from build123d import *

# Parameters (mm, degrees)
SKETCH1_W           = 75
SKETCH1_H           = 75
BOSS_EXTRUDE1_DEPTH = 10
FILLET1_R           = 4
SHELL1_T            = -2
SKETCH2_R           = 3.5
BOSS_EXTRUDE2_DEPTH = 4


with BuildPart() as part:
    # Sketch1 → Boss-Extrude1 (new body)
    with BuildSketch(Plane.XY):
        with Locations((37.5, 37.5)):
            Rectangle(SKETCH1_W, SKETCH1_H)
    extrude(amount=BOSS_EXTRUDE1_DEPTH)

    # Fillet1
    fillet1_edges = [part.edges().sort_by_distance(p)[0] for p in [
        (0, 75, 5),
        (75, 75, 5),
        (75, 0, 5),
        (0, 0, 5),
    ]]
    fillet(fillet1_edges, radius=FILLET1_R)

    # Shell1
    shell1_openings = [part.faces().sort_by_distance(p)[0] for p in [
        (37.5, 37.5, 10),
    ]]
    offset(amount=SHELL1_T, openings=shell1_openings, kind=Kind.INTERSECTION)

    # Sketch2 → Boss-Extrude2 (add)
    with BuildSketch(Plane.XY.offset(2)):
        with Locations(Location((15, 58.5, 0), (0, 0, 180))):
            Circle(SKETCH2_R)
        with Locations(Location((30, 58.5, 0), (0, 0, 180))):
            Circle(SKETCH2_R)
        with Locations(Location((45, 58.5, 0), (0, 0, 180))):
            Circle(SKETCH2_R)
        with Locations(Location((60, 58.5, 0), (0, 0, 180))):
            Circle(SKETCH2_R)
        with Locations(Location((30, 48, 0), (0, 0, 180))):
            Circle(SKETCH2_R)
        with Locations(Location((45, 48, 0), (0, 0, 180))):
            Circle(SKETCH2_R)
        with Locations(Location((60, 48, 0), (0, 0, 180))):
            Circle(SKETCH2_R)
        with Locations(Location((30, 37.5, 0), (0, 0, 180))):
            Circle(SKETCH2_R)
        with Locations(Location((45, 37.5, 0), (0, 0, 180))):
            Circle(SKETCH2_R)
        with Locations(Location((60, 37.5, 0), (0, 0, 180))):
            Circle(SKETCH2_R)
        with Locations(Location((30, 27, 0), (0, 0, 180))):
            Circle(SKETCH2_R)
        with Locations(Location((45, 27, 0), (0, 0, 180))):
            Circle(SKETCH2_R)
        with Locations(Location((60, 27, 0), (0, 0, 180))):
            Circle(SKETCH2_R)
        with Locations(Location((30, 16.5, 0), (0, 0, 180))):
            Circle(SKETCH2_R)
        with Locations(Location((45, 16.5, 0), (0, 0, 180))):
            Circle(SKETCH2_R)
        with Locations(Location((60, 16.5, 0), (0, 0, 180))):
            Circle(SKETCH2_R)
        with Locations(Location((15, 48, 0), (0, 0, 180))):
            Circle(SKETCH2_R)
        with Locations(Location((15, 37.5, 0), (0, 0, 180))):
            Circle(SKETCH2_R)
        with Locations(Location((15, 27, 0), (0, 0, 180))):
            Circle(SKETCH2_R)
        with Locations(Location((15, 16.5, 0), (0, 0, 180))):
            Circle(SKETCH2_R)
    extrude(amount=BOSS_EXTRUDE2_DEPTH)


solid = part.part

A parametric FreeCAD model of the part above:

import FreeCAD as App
import Part
import Sketcher

V = App.Vector


def edges_at(feature, points):
    """Names of the edges that pass closest to the given points."""
    edges = feature.Shape.Edges
    near = lambda p: min(range(len(edges)), key=lambda i: edges[i].distToShape(Part.Vertex(*p))[0])
    return sorted({f"Edge{near(p) + 1}" for p in points})


def faces_at(feature, points):
    """Names of the faces that lie closest to the given points."""
    faces = feature.Shape.Faces
    near = lambda p: min(range(len(faces)), key=lambda i: faces[i].distToShape(Part.Vertex(*p))[0])
    return sorted({f"Face{near(p) + 1}" for p in points})


def add_polygon(sketch, points):
    """Adds a closed chain of lines whose ends are joined by coincident constraints."""
    first, n = sketch.GeometryCount, len(points)
    for a, b in zip(points, points[1:] + points[:1]):
        sketch.addGeometry(Part.LineSegment(App.Vector(*a, 0), App.Vector(*b, 0)), False)
    for i in range(n):
        sketch.addConstraint(Sketcher.Constraint("Coincident", first + i, 2, first + (i + 1) % n, 1))

doc = App.newDocument("Part")
params = doc.addObject("Spreadsheet::Sheet", "Params")
for row, (alias, value) in enumerate([
    ("sketch1_width", "75 mm"),
    ("pad1_length", "10 mm"),
    ("fillet_radius", "4 mm"),
    ("thickness_wall", "2 mm"),
    ("sketch2_diameter", "7 mm"),
    ("pad2_length", "4 mm"),
], start=1):
    params.set(f"A{row}", alias)
    params.set(f"B{row}", "=" + value)
    params.setAlias(f"B{row}", alias)

body = doc.addObject("PartDesign::Body", "Body")

# Sketch on XY plane
sketch1 = body.newObject("Sketcher::SketchObject", "Sketch")
sketch1.AttachmentSupport = (doc.getObject("XY_Plane"), [""])
sketch1.MapMode = "FlatFace"
add_polygon(sketch1, [(0, 75), (0, 0), (75, 0), (75, 75)])  # lines 0-3
sketch1.addConstraint(Sketcher.Constraint("Vertical", 0))
sketch1.addConstraint(Sketcher.Constraint("Horizontal", 1))
sketch1.addConstraint(Sketcher.Constraint("Vertical", 2))
sketch1.addConstraint(Sketcher.Constraint("Horizontal", 3))
sketch1.addConstraint(Sketcher.Constraint("Coincident", 0, 2, -1, 1))
sketch1.addConstraint(Sketcher.Constraint("Equal", 3, 0))
sketch1.addConstraint(Sketcher.Constraint("DistanceX", 1, 1, 1, 2, 75.0))
sketch1.setExpression("Constraints[10]", "Params.sketch1_width")
pad1 = body.newObject("PartDesign::Pad", "Pad")
pad1.Profile = sketch1
pad1.setExpression("Length", "Params.pad1_length")
doc.recompute()

fillet = body.newObject("PartDesign::Fillet", "Fillet")
fillet.Base = (pad1, edges_at(pad1, [
    (0, 75, 5),
    (75, 75, 5),
    (75, 0, 5),
    (0, 0, 5),
]))
fillet.setExpression("Radius", "Params.fillet_radius")
doc.recompute()

thickness = body.newObject("PartDesign::Thickness", "Thickness")
thickness.Base = (fillet, faces_at(fillet, [(37.5, 37.5, 10)]))
thickness.setExpression("Value", "Params.thickness_wall")
thickness.Reversed = True
thickness.Join = "Intersection"

# Sketch on XY plane
sketch2 = body.newObject("Sketcher::SketchObject", "Sketch001")
sketch2.AttachmentSupport = (doc.getObject("XY_Plane"), [""])
sketch2.MapMode = "FlatFace"
sketch2.AttachmentOffset = App.Placement(V(0, 0, 2), App.Rotation())
sketch2.addGeometry(Part.Circle(V(15, 58.5, 0), V(0, 0, 1), 3.5), False)
sketch2.addGeometry(Part.Circle(V(30, 58.5, 0), V(0, 0, 1), 3.5), False)
sketch2.addGeometry(Part.Circle(V(45, 58.5, 0), V(0, 0, 1), 3.5), False)
sketch2.addGeometry(Part.Circle(V(60, 58.5, 0), V(0, 0, 1), 3.5), False)
sketch2.addGeometry(Part.Circle(V(30, 48, 0), V(0, 0, 1), 3.5), False)
sketch2.addGeometry(Part.Circle(V(45, 48, 0), V(0, 0, 1), 3.5), False)
sketch2.addGeometry(Part.Circle(V(60, 48, 0), V(0, 0, 1), 3.5), False)
sketch2.addGeometry(Part.Circle(V(30, 37.5, 0), V(0, 0, 1), 3.5), False)
sketch2.addGeometry(Part.Circle(V(45, 37.5, 0), V(0, 0, 1), 3.5), False)
sketch2.addGeometry(Part.Circle(V(60, 37.5, 0), V(0, 0, 1), 3.5), False)
sketch2.addGeometry(Part.Circle(V(30, 27, 0), V(0, 0, 1), 3.5), False)
sketch2.addGeometry(Part.Circle(V(45, 27, 0), V(0, 0, 1), 3.5), False)
sketch2.addGeometry(Part.Circle(V(60, 27, 0), V(0, 0, 1), 3.5), False)
sketch2.addGeometry(Part.Circle(V(30, 16.5, 0), V(0, 0, 1), 3.5), False)
sketch2.addGeometry(Part.Circle(V(45, 16.5, 0), V(0, 0, 1), 3.5), False)
sketch2.addGeometry(Part.Circle(V(60, 16.5, 0), V(0, 0, 1), 3.5), False)
sketch2.addGeometry(Part.Circle(V(15, 48, 0), V(0, 0, 1), 3.5), False)
sketch2.addGeometry(Part.Circle(V(15, 37.5, 0), V(0, 0, 1), 3.5), False)
sketch2.addGeometry(Part.Circle(V(15, 27, 0), V(0, 0, 1), 3.5), False)
sketch2.addGeometry(Part.Circle(V(15, 16.5, 0), V(0, 0, 1), 3.5), False)
sketch2.addConstraint(Sketcher.Constraint("Equal", 0, 1))
sketch2.addConstraint(Sketcher.Constraint("Equal", 1, 2))
sketch2.addConstraint(Sketcher.Constraint("Equal", 2, 3))
sketch2.addConstraint(Sketcher.Constraint("Equal", 3, 4))
sketch2.addConstraint(Sketcher.Constraint("Equal", 4, 5))
sketch2.addConstraint(Sketcher.Constraint("Equal", 5, 6))
sketch2.addConstraint(Sketcher.Constraint("Equal", 6, 7))
sketch2.addConstraint(Sketcher.Constraint("Equal", 7, 8))
sketch2.addConstraint(Sketcher.Constraint("Equal", 8, 9))
sketch2.addConstraint(Sketcher.Constraint("Equal", 9, 10))
sketch2.addConstraint(Sketcher.Constraint("Equal", 10, 11))
sketch2.addConstraint(Sketcher.Constraint("Equal", 11, 12))
sketch2.addConstraint(Sketcher.Constraint("Equal", 12, 13))
sketch2.addConstraint(Sketcher.Constraint("Equal", 13, 14))
sketch2.addConstraint(Sketcher.Constraint("Equal", 14, 15))
sketch2.addConstraint(Sketcher.Constraint("Equal", 15, 16))
sketch2.addConstraint(Sketcher.Constraint("Equal", 16, 17))
sketch2.addConstraint(Sketcher.Constraint("Equal", 17, 18))
sketch2.addConstraint(Sketcher.Constraint("Equal", 18, 19))
sketch2.addConstraint(Sketcher.Constraint("Horizontal", 0, 3, 1, 3))
sketch2.addConstraint(Sketcher.Constraint("Horizontal", 1, 3, 2, 3))
sketch2.addConstraint(Sketcher.Constraint("Horizontal", 2, 3, 3, 3))
sketch2.addConstraint(Sketcher.Constraint("Horizontal", 4, 3, 5, 3))
sketch2.addConstraint(Sketcher.Constraint("Horizontal", 5, 3, 6, 3))
sketch2.addConstraint(Sketcher.Constraint("Horizontal", 7, 3, 8, 3))
sketch2.addConstraint(Sketcher.Constraint("Horizontal", 8, 3, 9, 3))
sketch2.addConstraint(Sketcher.Constraint("Horizontal", 10, 3, 11, 3))
sketch2.addConstraint(Sketcher.Constraint("Horizontal", 11, 3, 12, 3))
sketch2.addConstraint(Sketcher.Constraint("Horizontal", 13, 3, 14, 3))
sketch2.addConstraint(Sketcher.Constraint("Horizontal", 14, 3, 15, 3))
sketch2.addConstraint(Sketcher.Constraint("Horizontal", 6, 3, 16, 3))
sketch2.addConstraint(Sketcher.Constraint("Horizontal", 9, 3, 17, 3))
sketch2.addConstraint(Sketcher.Constraint("Horizontal", 12, 3, 18, 3))
sketch2.addConstraint(Sketcher.Constraint("Horizontal", 15, 3, 19, 3))
sketch2.addConstraint(Sketcher.Constraint("Vertical", 1, 3, 4, 3))
sketch2.addConstraint(Sketcher.Constraint("Vertical", 2, 3, 5, 3))
sketch2.addConstraint(Sketcher.Constraint("Vertical", 3, 3, 6, 3))
sketch2.addConstraint(Sketcher.Constraint("Vertical", 4, 3, 7, 3))
sketch2.addConstraint(Sketcher.Constraint("Vertical", 5, 3, 8, 3))
sketch2.addConstraint(Sketcher.Constraint("Vertical", 6, 3, 9, 3))
sketch2.addConstraint(Sketcher.Constraint("Vertical", 7, 3, 10, 3))
sketch2.addConstraint(Sketcher.Constraint("Vertical", 8, 3, 11, 3))
sketch2.addConstraint(Sketcher.Constraint("Vertical", 9, 3, 12, 3))
sketch2.addConstraint(Sketcher.Constraint("Vertical", 10, 3, 13, 3))
sketch2.addConstraint(Sketcher.Constraint("Vertical", 11, 3, 14, 3))
sketch2.addConstraint(Sketcher.Constraint("Vertical", 12, 3, 15, 3))
sketch2.addConstraint(Sketcher.Constraint("Vertical", 0, 3, 16, 3))
sketch2.addConstraint(Sketcher.Constraint("Vertical", 16, 3, 17, 3))
sketch2.addConstraint(Sketcher.Constraint("Vertical", 17, 3, 18, 3))
sketch2.addConstraint(Sketcher.Constraint("Vertical", 18, 3, 19, 3))
sketch2.addConstraint(Sketcher.Constraint("Diameter", 0, 7.0))
sketch2.addConstraint(Sketcher.Constraint("DistanceX", -1, 1, 0, 3, 15.0))
sketch2.addConstraint(Sketcher.Constraint("DistanceX", -1, 1, 1, 3, 30.0))
sketch2.addConstraint(Sketcher.Constraint("DistanceX", -1, 1, 2, 3, 45.0))
sketch2.addConstraint(Sketcher.Constraint("DistanceX", -1, 1, 3, 3, 60.0))
sketch2.addConstraint(Sketcher.Constraint("DistanceY", -1, 1, 4, 3, 48.0))
sketch2.addConstraint(Sketcher.Constraint("DistanceY", -1, 1, 10, 3, 27.0))
sketch2.addConstraint(Sketcher.Constraint("DistanceY", 7, 3, 1, 3, 21.0))
sketch2.addConstraint(Sketcher.Constraint("DistanceY", 13, 3, 7, 3, 21.0))
sketch2.addConstraint(Sketcher.Constraint("DistanceY", -1, 1, 0, 3, 58.5))
sketch2.setExpression("Constraints[50]", "Params.sketch2_diameter")
pad2 = body.newObject("PartDesign::Pad", "Pad001")
pad2.Profile = sketch2
pad2.setExpression("Length", "Params.pad2_length")

doc.recompute()
